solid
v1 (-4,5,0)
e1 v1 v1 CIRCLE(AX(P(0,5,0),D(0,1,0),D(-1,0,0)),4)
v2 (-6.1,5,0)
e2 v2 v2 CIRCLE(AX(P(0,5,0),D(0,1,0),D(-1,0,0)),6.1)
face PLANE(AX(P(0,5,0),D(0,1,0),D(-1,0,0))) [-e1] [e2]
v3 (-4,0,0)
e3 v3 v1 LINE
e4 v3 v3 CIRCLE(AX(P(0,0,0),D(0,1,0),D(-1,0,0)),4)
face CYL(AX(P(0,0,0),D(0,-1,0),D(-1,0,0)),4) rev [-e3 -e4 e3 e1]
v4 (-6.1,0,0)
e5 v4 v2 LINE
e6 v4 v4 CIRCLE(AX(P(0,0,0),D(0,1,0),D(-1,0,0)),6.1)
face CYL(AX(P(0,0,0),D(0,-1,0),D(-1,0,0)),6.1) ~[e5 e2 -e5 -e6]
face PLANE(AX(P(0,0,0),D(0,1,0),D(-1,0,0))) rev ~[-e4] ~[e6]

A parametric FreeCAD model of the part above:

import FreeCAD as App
import Part
import Sketcher

V = App.Vector
Q = App.Units.Quantity

doc = App.newDocument("Part")
body = doc.addObject("PartDesign::Body", "Body")

# Sketch on XZ plane
sketch1 = body.newObject("Sketcher::SketchObject", "Sketch")
sketch1.AttachmentSupport = (doc.getObject("XZ_Plane"), [""])
sketch1.MapMode = "FlatFace"
sketch1.addGeometry(Part.Circle(V(0, 0, 0), V(0, 0, 1), 6.1), False)
sketch1.addGeometry(Part.Circle(V(0, 0, 0), V(0, 0, 1), 4), False)
sketch1.addConstraint(Sketcher.Constraint("Coincident", 0, 3, -1, 1))
sketch1.addConstraint(Sketcher.Constraint("Coincident", 1, 3, -1, 1))
sketch1.addConstraint(Sketcher.Constraint("Diameter", 1, Q("8 mm")))
sketch1.addConstraint(Sketcher.Constraint("Diameter", 0, Q("12.2 mm")))
pad1 = body.newObject("PartDesign::Pad", "Pad")
pad1.Profile = sketch1
pad1.Length = 5
pad1.Reversed = True

doc.recompute()
